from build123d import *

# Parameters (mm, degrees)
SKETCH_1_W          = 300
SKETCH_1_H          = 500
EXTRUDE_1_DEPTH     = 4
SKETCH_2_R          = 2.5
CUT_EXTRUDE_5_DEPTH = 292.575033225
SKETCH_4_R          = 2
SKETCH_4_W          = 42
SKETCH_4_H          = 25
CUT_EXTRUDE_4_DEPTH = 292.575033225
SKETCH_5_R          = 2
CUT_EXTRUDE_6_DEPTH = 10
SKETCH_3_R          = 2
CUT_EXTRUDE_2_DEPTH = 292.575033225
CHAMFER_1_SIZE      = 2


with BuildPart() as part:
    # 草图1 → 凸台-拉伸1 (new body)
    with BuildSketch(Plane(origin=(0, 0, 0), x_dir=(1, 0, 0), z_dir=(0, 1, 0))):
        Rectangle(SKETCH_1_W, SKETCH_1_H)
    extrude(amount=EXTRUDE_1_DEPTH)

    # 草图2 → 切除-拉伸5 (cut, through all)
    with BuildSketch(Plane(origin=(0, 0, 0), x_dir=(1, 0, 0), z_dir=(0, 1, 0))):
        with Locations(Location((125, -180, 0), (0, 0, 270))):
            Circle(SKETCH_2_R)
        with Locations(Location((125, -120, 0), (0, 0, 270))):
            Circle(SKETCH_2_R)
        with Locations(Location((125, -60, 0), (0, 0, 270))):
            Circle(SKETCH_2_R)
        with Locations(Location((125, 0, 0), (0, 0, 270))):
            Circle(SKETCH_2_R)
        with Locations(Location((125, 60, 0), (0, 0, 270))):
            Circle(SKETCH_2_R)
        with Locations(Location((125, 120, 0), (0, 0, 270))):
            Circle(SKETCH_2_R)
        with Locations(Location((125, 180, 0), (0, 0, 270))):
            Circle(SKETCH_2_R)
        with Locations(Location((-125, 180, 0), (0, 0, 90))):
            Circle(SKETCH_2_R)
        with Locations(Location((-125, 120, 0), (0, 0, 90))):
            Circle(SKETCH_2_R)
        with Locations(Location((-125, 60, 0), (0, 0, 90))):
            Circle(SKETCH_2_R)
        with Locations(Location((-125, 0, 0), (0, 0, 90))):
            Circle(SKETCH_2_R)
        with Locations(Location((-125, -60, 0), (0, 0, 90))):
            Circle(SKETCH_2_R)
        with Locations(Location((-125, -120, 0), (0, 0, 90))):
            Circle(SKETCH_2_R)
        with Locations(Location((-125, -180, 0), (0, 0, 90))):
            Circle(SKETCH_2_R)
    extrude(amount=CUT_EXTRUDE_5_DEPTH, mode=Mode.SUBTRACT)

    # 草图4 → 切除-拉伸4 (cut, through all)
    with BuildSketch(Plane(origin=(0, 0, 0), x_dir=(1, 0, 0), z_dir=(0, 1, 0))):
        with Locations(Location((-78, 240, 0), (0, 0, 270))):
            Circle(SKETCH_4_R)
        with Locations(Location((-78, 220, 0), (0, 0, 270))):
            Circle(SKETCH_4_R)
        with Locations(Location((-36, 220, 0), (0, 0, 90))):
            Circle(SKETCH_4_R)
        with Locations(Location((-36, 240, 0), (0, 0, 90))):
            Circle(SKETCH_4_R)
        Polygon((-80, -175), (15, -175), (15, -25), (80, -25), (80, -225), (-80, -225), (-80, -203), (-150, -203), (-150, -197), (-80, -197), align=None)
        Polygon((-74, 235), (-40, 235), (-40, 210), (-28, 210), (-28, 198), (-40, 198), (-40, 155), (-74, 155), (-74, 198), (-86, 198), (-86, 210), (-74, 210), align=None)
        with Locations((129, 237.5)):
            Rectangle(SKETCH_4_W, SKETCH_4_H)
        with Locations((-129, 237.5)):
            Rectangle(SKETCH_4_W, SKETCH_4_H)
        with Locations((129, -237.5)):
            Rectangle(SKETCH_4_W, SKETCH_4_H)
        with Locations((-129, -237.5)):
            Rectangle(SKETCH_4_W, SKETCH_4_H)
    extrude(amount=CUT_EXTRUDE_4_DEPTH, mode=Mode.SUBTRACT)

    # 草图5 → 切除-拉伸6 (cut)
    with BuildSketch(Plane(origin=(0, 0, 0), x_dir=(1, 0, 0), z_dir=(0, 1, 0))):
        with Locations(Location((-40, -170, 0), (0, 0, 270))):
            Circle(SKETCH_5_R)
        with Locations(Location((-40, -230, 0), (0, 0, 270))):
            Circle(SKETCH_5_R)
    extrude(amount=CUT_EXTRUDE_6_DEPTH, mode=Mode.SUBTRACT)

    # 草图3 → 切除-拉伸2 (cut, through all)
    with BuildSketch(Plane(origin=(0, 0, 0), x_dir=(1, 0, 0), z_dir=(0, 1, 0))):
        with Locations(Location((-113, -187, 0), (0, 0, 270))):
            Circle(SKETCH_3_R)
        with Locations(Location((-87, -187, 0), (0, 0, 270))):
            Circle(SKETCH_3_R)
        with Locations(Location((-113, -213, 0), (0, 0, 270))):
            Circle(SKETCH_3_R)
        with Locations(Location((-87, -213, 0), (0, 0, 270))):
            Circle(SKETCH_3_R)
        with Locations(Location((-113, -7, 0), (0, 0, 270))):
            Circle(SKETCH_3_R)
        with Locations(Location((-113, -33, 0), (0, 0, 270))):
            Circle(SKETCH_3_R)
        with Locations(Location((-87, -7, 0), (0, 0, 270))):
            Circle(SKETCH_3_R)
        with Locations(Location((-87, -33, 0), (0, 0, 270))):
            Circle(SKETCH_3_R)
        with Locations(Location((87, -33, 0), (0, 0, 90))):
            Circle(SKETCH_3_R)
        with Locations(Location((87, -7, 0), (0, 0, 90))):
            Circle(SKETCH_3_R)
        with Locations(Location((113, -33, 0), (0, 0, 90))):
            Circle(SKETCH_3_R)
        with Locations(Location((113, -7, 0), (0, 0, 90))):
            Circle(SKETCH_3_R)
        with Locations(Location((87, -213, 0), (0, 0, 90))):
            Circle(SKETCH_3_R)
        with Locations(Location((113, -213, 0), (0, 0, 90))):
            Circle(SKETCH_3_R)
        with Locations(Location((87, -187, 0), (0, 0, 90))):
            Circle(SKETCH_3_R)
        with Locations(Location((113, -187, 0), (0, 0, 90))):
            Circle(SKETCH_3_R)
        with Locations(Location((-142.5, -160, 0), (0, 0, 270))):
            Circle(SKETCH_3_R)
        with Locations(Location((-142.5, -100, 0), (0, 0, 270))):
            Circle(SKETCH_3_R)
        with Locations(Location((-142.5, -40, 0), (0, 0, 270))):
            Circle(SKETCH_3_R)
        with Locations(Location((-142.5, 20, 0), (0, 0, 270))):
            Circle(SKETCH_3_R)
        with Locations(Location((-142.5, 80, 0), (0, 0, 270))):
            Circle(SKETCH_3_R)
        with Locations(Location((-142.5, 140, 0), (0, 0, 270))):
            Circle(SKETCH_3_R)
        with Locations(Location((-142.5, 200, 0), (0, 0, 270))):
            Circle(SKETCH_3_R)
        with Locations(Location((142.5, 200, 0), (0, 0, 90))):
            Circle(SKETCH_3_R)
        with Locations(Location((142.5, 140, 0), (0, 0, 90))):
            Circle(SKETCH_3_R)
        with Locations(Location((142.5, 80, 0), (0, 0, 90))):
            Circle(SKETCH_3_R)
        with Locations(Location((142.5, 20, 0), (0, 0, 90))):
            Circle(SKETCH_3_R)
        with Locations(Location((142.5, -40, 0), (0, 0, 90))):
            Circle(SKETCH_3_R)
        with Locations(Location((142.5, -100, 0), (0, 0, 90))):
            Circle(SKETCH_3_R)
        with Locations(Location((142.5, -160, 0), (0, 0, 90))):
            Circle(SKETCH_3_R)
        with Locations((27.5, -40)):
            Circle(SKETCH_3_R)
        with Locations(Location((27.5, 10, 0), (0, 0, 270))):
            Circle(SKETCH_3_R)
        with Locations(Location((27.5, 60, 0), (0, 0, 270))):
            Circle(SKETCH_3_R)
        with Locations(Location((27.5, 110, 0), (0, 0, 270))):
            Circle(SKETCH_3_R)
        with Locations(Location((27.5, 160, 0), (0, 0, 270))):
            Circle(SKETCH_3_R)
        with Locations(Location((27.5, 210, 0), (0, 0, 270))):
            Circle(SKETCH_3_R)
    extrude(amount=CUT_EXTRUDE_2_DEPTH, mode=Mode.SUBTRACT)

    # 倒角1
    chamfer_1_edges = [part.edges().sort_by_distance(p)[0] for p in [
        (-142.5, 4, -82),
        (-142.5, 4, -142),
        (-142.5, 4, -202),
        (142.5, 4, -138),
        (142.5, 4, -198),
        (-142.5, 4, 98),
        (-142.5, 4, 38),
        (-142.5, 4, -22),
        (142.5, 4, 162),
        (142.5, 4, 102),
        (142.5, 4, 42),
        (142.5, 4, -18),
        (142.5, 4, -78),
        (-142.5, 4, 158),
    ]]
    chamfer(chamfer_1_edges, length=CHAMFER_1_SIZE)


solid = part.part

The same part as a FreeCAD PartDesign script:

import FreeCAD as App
import Part
import Sketcher

V = App.Vector
Q = App.Units.Quantity


def edges_at(feature, points):
    """Names of the edges that pass closest to the given points."""
    edges = feature.Shape.Edges
    near = lambda p: min(range(len(edges)), key=lambda i: edges[i].distToShape(Part.Vertex(*p))[0])
    return sorted({f"Edge{near(p) + 1}" for p in points})

doc = App.newDocument("Part")
body = doc.addObject("PartDesign::Body", "Body")

# Sketch on XZ plane
sketch1 = doc.addObject("Sketcher::SketchObject", "Sketch")
body.addObject(sketch1)
sketch1.AttachmentSupport = (doc.XZ_Plane, [""])
sketch1.MapMode = "FlatFace"
sketch1.addGeometry([
    Part.LineSegment(V(-150, -250, 0), V(-150, 250, 0)),
    Part.LineSegment(V(-150, 250, 0), V(150, 250, 0)),
    Part.LineSegment(V(150, 250, 0), V(150, -250, 0)),
    Part.LineSegment(V(150, -250, 0), V(-150, -250, 0)),
], False)
sketch1.addConstraint([
    Sketcher.Constraint("Coincident", 0, 2, 1, 1),
    Sketcher.Constraint("Coincident", 1, 2, 2, 1),
    Sketcher.Constraint("Coincident", 2, 2, 3, 1),
    Sketcher.Constraint("Coincident", 3, 2, 0, 1),
    Sketcher.Constraint("Vertical", 0),
    Sketcher.Constraint("Horizontal", 1),
    Sketcher.Constraint("Vertical", 2),
    Sketcher.Constraint("Horizontal", 3),
    Sketcher.Constraint("Symmetric", 0, 2, 2, 2, -1, 1),
    Sketcher.Constraint("DistanceX", 1, 1, 1, 2, Q("300 mm")),
    Sketcher.Constraint("DistanceY", 0, 1, 0, 2, Q("500 mm")),
])
pad1 = doc.addObject("PartDesign::Pad", "Pad")
body.addObject(pad1)
pad1.Profile = sketch1
pad1.Length = 4
pad1.Reversed = True

# Sketch on XZ plane
sketch2 = doc.addObject("Sketcher::SketchObject", "Sketch001")
body.addObject(sketch2)
sketch2.AttachmentSupport = (doc.XZ_Plane, [""])
sketch2.MapMode = "FlatFace"
sketch2.addGeometry([
    Part.Circle(V(125, 180, 0), V(0, 0, 1), 2.5),  # 0
    Part.Circle(V(125, 120, 0), V(0, 0, 1), 2.5),  # 1
    Part.Circle(V(125, 60, 0), V(0, 0, 1), 2.5),  # 2
    Part.Circle(V(125, 0, 0), V(0, 0, 1), 2.5),  # 3
    Part.Circle(V(125, -60, 0), V(0, 0, 1), 2.5),  # 4
    Part.Circle(V(125, -120, 0), V(0, 0, 1), 2.5),  # 5
    Part.Circle(V(125, -180, 0), V(0, 0, 1), 2.5),  # 6
    Part.Circle(V(-125, -180, 0), V(0, 0, 1), 2.5),  # 7
    Part.Circle(V(-125, -120, 0), V(0, 0, 1), 2.5),  # 8
    Part.Circle(V(-125, -60, 0), V(0, 0, 1), 2.5),  # 9
    Part.Circle(V(-125, 0, 0), V(0, 0, 1), 2.5),  # 10
    Part.Circle(V(-125, 60, 0), V(0, 0, 1), 2.5),  # 11
    Part.Circle(V(-125, 120, 0), V(0, 0, 1), 2.5),  # 12
    Part.Circle(V(-125, 180, 0), V(0, 0, 1), 2.5),  # 13
], False)
sketch2.addConstraint([
    Sketcher.Constraint("Equal", 0, 1),
    Sketcher.Constraint("Equal", 1, 2),
    Sketcher.Constraint("Equal", 2, 3),
    Sketcher.Constraint("Equal", 3, 4),
    Sketcher.Constraint("Equal", 4, 5),
    Sketcher.Constraint("Equal", 5, 6),
    Sketcher.Constraint("Equal", 6, 7),
    Sketcher.Constraint("Equal", 7, 8),
    Sketcher.Constraint("Equal", 8, 9),
    Sketcher.Constraint("Equal", 9, 10),
    Sketcher.Constraint("Equal", 10, 11),
    Sketcher.Constraint("Equal", 11, 12),
    Sketcher.Constraint("Equal", 12, 13),
    Sketcher.Constraint("Symmetric", 0, 3, 7, 3, -1, 1),
    Sketcher.Constraint("Symmetric", 1, 3, 8, 3, -1, 1),
    Sketcher.Constraint("Symmetric", 2, 3, 9, 3, -1, 1),
    Sketcher.Constraint("Symmetric", 3, 3, 10, 3, -1, 1),
    Sketcher.Constraint("Symmetric", 4, 3, 11, 3, -1, 1),
    Sketcher.Constraint("Symmetric", 5, 3, 12, 3, -1, 1),
    Sketcher.Constraint("Symmetric", 6, 3, 13, 3, -1, 1),
    Sketcher.Constraint("Symmetric", 6, 3, 7, 3, -2),
    Sketcher.Constraint("Symmetric", 5, 3, 8, 3, -2),
    Sketcher.Constraint("Symmetric", 4, 3, 9, 3, -2),
    Sketcher.Constraint("PointOnObject", 3, 3, -1),
    Sketcher.Constraint("Vertical", 0, 3, 1, 3),
    Sketcher.Constraint("Vertical", 1, 3, 2, 3),
    Sketcher.Constraint("Vertical", 2, 3, 3, 3),
    Sketcher.Constraint("Diameter", 0, Q("5 mm")),
    Sketcher.Constraint("DistanceX", -1, 1, 0, 3, Q("125 mm")),
    Sketcher.Constraint("DistanceY", -1, 1, 0, 3, Q("180 mm")),
    Sketcher.Constraint("DistanceY", -1, 1, 1, 3, Q("120 mm")),
    Sketcher.Constraint("DistanceY", -1, 1, 2, 3, Q("60 mm")),
])
pocket1 = doc.addObject("PartDesign::Pocket", "Pocket")
body.addObject(pocket1)
pocket1.Profile = sketch2
pocket1.Type = "ThroughAll"

# Sketch on XZ plane
sketch3 = doc.addObject("Sketcher::SketchObject", "Sketch002")
body.addObject(sketch3)
sketch3.AttachmentSupport = (doc.XZ_Plane, [""])
sketch3.MapMode = "FlatFace"
sketch3.addGeometry([
    Part.Circle(V(-78, -240, 0), V(0, 0, 1), 2),  # 0
    Part.Circle(V(-78, -220, 0), V(0, 0, 1), 2),  # 1
    Part.Circle(V(-36, -220, 0), V(0, 0, 1), 2),  # 2
    Part.Circle(V(-36, -240, 0), V(0, 0, 1), 2),  # 3
    Part.LineSegment(V(15, 175, 0), V(-80, 175, 0)),  # 4
    Part.LineSegment(V(-80, 175, 0), V(-80, 197, 0)),  # 5
    Part.LineSegment(V(-80, 197, 0), V(-150, 197, 0)),  # 6
    Part.LineSegment(V(-150, 197, 0), V(-150, 203, 0)),  # 7
    Part.LineSegment(V(-150, 203, 0), V(-80, 203, 0)),  # 8
    Part.LineSegment(V(-80, 203, 0), V(-80, 225, 0)),  # 9
    Part.LineSegment(V(-80, 225, 0), V(80, 225, 0)),  # 10
    Part.LineSegment(V(80, 225, 0), V(80, 25, 0)),  # 11
    Part.LineSegment(V(80, 25, 0), V(15, 25, 0)),  # 12
    Part.LineSegment(V(15, 25, 0), V(15, 175, 0)),  # 13
    Part.LineSegment(V(-40, -235, 0), V(-74, -235, 0)),  # 14
    Part.LineSegment(V(-74, -235, 0), V(-74, -210, 0)),  # 15
    Part.LineSegment(V(-74, -210, 0), V(-86, -210, 0)),  # 16
    Part.LineSegment(V(-86, -210, 0), V(-86, -198, 0)),  # 17
    Part.LineSegment(V(-86, -198, 0), V(-74, -198, 0)),  # 18
    Part.LineSegment(V(-74, -198, 0), V(-74, -155, 0)),  # 19
    Part.LineSegment(V(-74, -155, 0), V(-40, -155, 0)),  # 20
    Part.LineSegment(V(-40, -155, 0), V(-40, -198, 0)),  # 21
    Part.LineSegment(V(-40, -198, 0), V(-28, -198, 0)),  # 22
    Part.LineSegment(V(-28, -198, 0), V(-28, -210, 0)),  # 23
    Part.LineSegment(V(-28, -210, 0), V(-40, -210, 0)),  # 24
    Part.LineSegment(V(-40, -210, 0), V(-40, -235, 0)),  # 25
    Part.LineSegment(V(108, -250, 0), V(108, -225, 0)),  # 26
    Part.LineSegment(V(108, -225, 0), V(150, -225, 0)),  # 27
    Part.LineSegment(V(150, -225, 0), V(150, -250, 0)),  # 28
    Part.LineSegment(V(150, -250, 0), V(108, -250, 0)),  # 29
    Part.LineSegment(V(-150, -250, 0), V(-150, -225, 0)),  # 30
    Part.LineSegment(V(-150, -225, 0), V(-108, -225, 0)),  # 31
    Part.LineSegment(V(-108, -225, 0), V(-108, -250, 0)),  # 32
    Part.LineSegment(V(-108, -250, 0), V(-150, -250, 0)),  # 33
    Part.LineSegment(V(108, 225, 0), V(108, 250, 0)),  # 34
    Part.LineSegment(V(108, 250, 0), V(150, 250, 0)),  # 35
    Part.LineSegment(V(150, 250, 0), V(150, 225, 0)),  # 36
    Part.LineSegment(V(150, 225, 0), V(108, 225, 0)),  # 37
    Part.LineSegment(V(-150, 225, 0), V(-150, 250, 0)),  # 38
    Part.LineSegment(V(-150, 250, 0), V(-108, 250, 0)),  # 39
    Part.LineSegment(V(-108, 250, 0), V(-108, 225, 0)),  # 40
    Part.LineSegment(V(-108, 225, 0), V(-150, 225, 0)),  # 41
], False)
sketch3.addConstraint([
    Sketcher.Constraint("Coincident", 4, 2, 5, 1),
    Sketcher.Constraint("Coincident", 5, 2, 6, 1),
    Sketcher.Constraint("Coincident", 6, 2, 7, 1),
    Sketcher.Constraint("Coincident", 7, 2, 8, 1),
    Sketcher.Constraint("Coincident", 8, 2, 9, 1),
    Sketcher.Constraint("Coincident", 9, 2, 10, 1),
    Sketcher.Constraint("Coincident", 10, 2, 11, 1),
    Sketcher.Constraint("Coincident", 11, 2, 12, 1),
    Sketcher.Constraint("Coincident", 12, 2, 13, 1),
    Sketcher.Constraint("Coincident", 13, 2, 4, 1),
    Sketcher.Constraint("Coincident", 14, 2, 15, 1),
    Sketcher.Constraint("Coincident", 15, 2, 16, 1),
    Sketcher.Constraint("Coincident", 16, 2, 17, 1),
    Sketcher.Constraint("Coincident", 17, 2, 18, 1),
    Sketcher.Constraint("Coincident", 18, 2, 19, 1),
    Sketcher.Constraint("Coincident", 19, 2, 20, 1),
    Sketcher.Constraint("Coincident", 20, 2, 21, 1),
    Sketcher.Constraint("Coincident", 21, 2, 22, 1),
    Sketcher.Constraint("Coincident", 22, 2, 23, 1),
    Sketcher.Constraint("Coincident", 23, 2, 24, 1),
    Sketcher.Constraint("Coincident", 24, 2, 25, 1),
    Sketcher.Constraint("Coincident", 25, 2, 14, 1),
    Sketcher.Constraint("Coincident", 26, 2, 27, 1),
    Sketcher.Constraint("Coincident", 27, 2, 28, 1),
    Sketcher.Constraint("Coincident", 28, 2, 29, 1),
    Sketcher.Constraint("Coincident", 29, 2, 26, 1),
    Sketcher.Constraint("Coincident", 30, 2, 31, 1),
    Sketcher.Constraint("Coincident", 31, 2, 32, 1),
    Sketcher.Constraint("Coincident", 32, 2, 33, 1),
    Sketcher.Constraint("Coincident", 33, 2, 30, 1),
    Sketcher.Constraint("Coincident", 34, 2, 35, 1),
    Sketcher.Constraint("Coincident", 35, 2, 36, 1),
    Sketcher.Constraint("Coincident", 36, 2, 37, 1),
    Sketcher.Constraint("Coincident", 37, 2, 34, 1),
    Sketcher.Constraint("Coincident", 38, 2, 39, 1),
    Sketcher.Constraint("Coincident", 39, 2, 40, 1),
    Sketcher.Constraint("Coincident", 40, 2, 41, 1),
    Sketcher.Constraint("Coincident", 41, 2, 38, 1),
    Sketcher.Constraint("Horizontal", 4),
    Sketcher.Constraint("Vertical", 5),
    Sketcher.Constraint("Horizontal", 6),
    Sketcher.Constraint("Vertical", 7),
    Sketcher.Constraint("Horizontal", 8),
    Sketcher.Constraint("Vertical", 9),
    Sketcher.Constraint("Horizontal", 10),
    Sketcher.Constraint("Vertical", 11),
    Sketcher.Constraint("Horizontal", 12),
    Sketcher.Constraint("Vertical", 13),
    Sketcher.Constraint("Horizontal", 14),
    Sketcher.Constraint("Vertical", 15),
    Sketcher.Constraint("Horizontal", 16),
    Sketcher.Constraint("Vertical", 17),
    Sketcher.Constraint("Horizontal", 18),
    Sketcher.Constraint("Vertical", 19),
    Sketcher.Constraint("Horizontal", 20),
    Sketcher.Constraint("Vertical", 21),
    Sketcher.Constraint("Horizontal", 22),
    Sketcher.Constraint("Vertical", 23),
    Sketcher.Constraint("Horizontal", 24),
    Sketcher.Constraint("Vertical", 25),
    Sketcher.Constraint("Vertical", 26),
    Sketcher.Constraint("Horizontal", 27),
    Sketcher.Constraint("Vertical", 28),
    Sketcher.Constraint("Horizontal", 29),
    Sketcher.Constraint("Vertical", 30),
    Sketcher.Constraint("Horizontal", 31),
    Sketcher.Constraint("Vertical", 32),
    Sketcher.Constraint("Horizontal", 33),
    Sketcher.Constraint("Vertical", 34),
    Sketcher.Constraint("Horizontal", 35),
    Sketcher.Constraint("Vertical", 36),
    Sketcher.Constraint("Horizontal", 37),
    Sketcher.Constraint("Vertical", 38),
    Sketcher.Constraint("Horizontal", 39),
    Sketcher.Constraint("Vertical", 40),
    Sketcher.Constraint("Horizontal", 41),
    Sketcher.Constraint("Equal", 0, 1),
    Sketcher.Constraint("Equal", 1, 2),
    Sketcher.Constraint("Equal", 2, 3),
    Sketcher.Constraint("Symmetric", 32, 2, 34, 2, -1, 1),
    Sketcher.Constraint("Symmetric", 30, 2, 36, 2, -1, 1),
    Sketcher.Constraint("Symmetric", 28, 2, 38, 2, -1, 1),
    Sketcher.Constraint("Symmetric", 26, 2, 40, 2, -1, 1),
    Sketcher.Constraint("Symmetric", 27, 2, 30, 2, -2),
    Sketcher.Constraint("Symmetric", 29, 2, 32, 2, -2),
    Sketcher.Constraint("Horizontal", 1, 3, 2, 3),
    Sketcher.Constraint("Horizontal", 0, 3, 3, 3),
    Sketcher.Constraint("Horizontal", 18, 2, 21, 2),
    Sketcher.Constraint("Horizontal", 16, 2, 23, 2),
    Sketcher.Constraint("Horizontal", 10, 2, 36, 2),
    Sketcher.Constraint("Vertical", 0, 3, 1, 3),
    Sketcher.Constraint("Vertical", 2, 3, 3, 3),
    Sketcher.Constraint("Vertical", 5, 2, 8, 2),
    Sketcher.Constraint("Vertical", 15, 2, 18, 2),
    Sketcher.Constraint("Vertical", 21, 2, 24, 2),
    Sketcher.Constraint("Vertical", 7, 2, 30, 2),
    Sketcher.Constraint("Equal", 18, 22),
    Sketcher.Constraint("Equal", 5, 9),
    Sketcher.Constraint("Equal", 24, 17),
    Sketcher.Constraint("Equal", 25, 26),
    Sketcher.Constraint("Diameter", 0, Q("4 mm")),
    Sketcher.Constraint("DistanceX", 4, 2, 4, 1, Q("95 mm")),
    Sketcher.Constraint("DistanceX", 6, 2, 6, 1, Q("70 mm")),
    Sketcher.Constraint("DistanceX", 10, 1, 10, 2, Q("160 mm")),
    Sketcher.Constraint("DistanceX", 14, 2, 14, 1, Q("34 mm")),
    Sketcher.Constraint("DistanceX", 16, 2, 16, 1, Q("12 mm")),
    Sketcher.Constraint("DistanceX", 27, 1, 27, 2, Q("42 mm")),
    Sketcher.Constraint("DistanceY", 5, 1, 5, 2, Q("22 mm")),
    Sketcher.Constraint("DistanceY", 7, 1, 7, 2, Q("6 mm")),
    Sketcher.Constraint("DistanceY", 11, 2, 11, 1, Q("200 mm")),
    Sketcher.Constraint("DistanceY", 15, 1, 15, 2, Q("25 mm")),
    Sketcher.Constraint("DistanceY", 19, 1, 19, 2, Q("43 mm")),
    Sketcher.Constraint("DistanceX", 0, 3, -1, 1, Q("78 mm")),
    Sketcher.Constraint("DistanceY", 0, 3, -1, 1, Q("240 mm")),
    Sketcher.Constraint("DistanceY", 1, 3, -1, 1, Q("220 mm")),
    Sketcher.Constraint("DistanceX", 2, 3, -1, 1, Q("36 mm")),
    Sketcher.Constraint("DistanceX", 4, 2, -1, 1, Q("80 mm")),
    Sketcher.Constraint("DistanceY", -1, 1, 4, 2, Q("175 mm")),
    Sketcher.Constraint("DistanceX", 14, 2, -1, 1, Q("74 mm")),
    Sketcher.Constraint("DistanceY", 14, 2, -1, 1, Q("235 mm")),
])
pocket2 = doc.addObject("PartDesign::Pocket", "Pocket001")
body.addObject(pocket2)
pocket2.Profile = sketch3
pocket2.Type = "ThroughAll"

# Sketch on XZ plane
sketch4 = doc.addObject("Sketcher::SketchObject", "Sketch003")
body.addObject(sketch4)
sketch4.AttachmentSupport = (doc.XZ_Plane, [""])
sketch4.MapMode = "FlatFace"
sketch4.addGeometry([
    Part.Circle(V(-40, 170, 0), V(0, 0, 1), 2),
    Part.Circle(V(-40, 230, 0), V(0, 0, 1), 2),
], False)
sketch4.addConstraint([
    Sketcher.Constraint("Equal", 0, 1),
    Sketcher.Constraint("Vertical", 0, 3, 1, 3),
    Sketcher.Constraint("Diameter", 0, Q("4 mm")),
    Sketcher.Constraint("DistanceX", 0, 3, -1, 1, Q("40 mm")),
    Sketcher.Constraint("DistanceY", -1, 1, 0, 3, Q("170 mm")),
    Sketcher.Constraint("DistanceY", -1, 1, 1, 3, Q("230 mm")),
])
pocket3 = doc.addObject("PartDesign::Pocket", "Pocket002")
body.addObject(pocket3)
pocket3.Profile = sketch4
pocket3.Length = 10

# Sketch on XZ plane
sketch5 = doc.addObject("Sketcher::SketchObject", "Sketch004")
body.addObject(sketch5)
sketch5.AttachmentSupport = (doc.XZ_Plane, [""])
sketch5.MapMode = "FlatFace"
sketch5.addGeometry([
    Part.Circle(V(-113, 187, 0), V(0, 0, 1), 2),  # 0
    Part.Circle(V(-87, 187, 0), V(0, 0, 1), 2),  # 1
    Part.Circle(V(-113, 213, 0), V(0, 0, 1), 2),  # 2
    Part.Circle(V(-87, 213, 0), V(0, 0, 1), 2),  # 3
    Part.Circle(V(-113, 7, 0), V(0, 0, 1), 2),  # 4
    Part.Circle(V(-113, 33, 0), V(0, 0, 1), 2),  # 5
    Part.Circle(V(-87, 7, 0), V(0, 0, 1), 2),  # 6
    Part.Circle(V(-87, 33, 0), V(0, 0, 1), 2),  # 7
    Part.Circle(V(87, 33, 0), V(0, 0, 1), 2),  # 8
    Part.Circle(V(87, 7, 0), V(0, 0, 1), 2),  # 9
    Part.Circle(V(113, 33, 0), V(0, 0, 1), 2),  # 10
    Part.Circle(V(113, 7, 0), V(0, 0, 1), 2),  # 11
    Part.Circle(V(87, 213, 0), V(0, 0, 1), 2),  # 12
    Part.Circle(V(113, 213, 0), V(0, 0, 1), 2),  # 13
    Part.Circle(V(87, 187, 0), V(0, 0, 1), 2),  # 14
    Part.Circle(V(113, 187, 0), V(0, 0, 1), 2),  # 15
    Part.Circle(V(-142.5, 160, 0), V(0, 0, 1), 2),  # 16
    Part.Circle(V(-142.5, 100, 0), V(0, 0, 1), 2),  # 17
    Part.Circle(V(-142.5, 40, 0), V(0, 0, 1), 2),  # 18
    Part.Circle(V(-142.5, -20, 0), V(0, 0, 1), 2),  # 19
    Part.Circle(V(-142.5, -80, 0), V(0, 0, 1), 2),  # 20
    Part.Circle(V(-142.5, -140, 0), V(0, 0, 1), 2),  # 21
    Part.Circle(V(-142.5, -200, 0), V(0, 0, 1), 2),  # 22
    Part.Circle(V(142.5, -200, 0), V(0, 0, 1), 2),  # 23
    Part.Circle(V(142.5, -140, 0), V(0, 0, 1), 2),  # 24
    Part.Circle(V(142.5, -80, 0), V(0, 0, 1), 2),  # 25
    Part.Circle(V(142.5, -20, 0), V(0, 0, 1), 2),  # 26
    Part.Circle(V(142.5, 40, 0), V(0, 0, 1), 2),  # 27
    Part.Circle(V(142.5, 100, 0), V(0, 0, 1), 2),  # 28
    Part.Circle(V(142.5, 160, 0), V(0, 0, 1), 2),  # 29
    Part.Circle(V(27.5, 40, 0), V(0, 0, 1), 2),  # 30
    Part.Circle(V(27.5, -10, 0), V(0, 0, 1), 2),  # 31
    Part.Circle(V(27.5, -60, 0), V(0, 0, 1), 2),  # 32
    Part.Circle(V(27.5, -110, 0), V(0, 0, 1), 2),  # 33
    Part.Circle(V(27.5, -160, 0), V(0, 0, 1), 2),  # 34
    Part.Circle(V(27.5, -210, 0), V(0, 0, 1), 2),  # 35
], False)
sketch5.addConstraint([
    Sketcher.Constraint("Equal", 0, 1),
    Sketcher.Constraint("Equal", 1, 2),
    Sketcher.Constraint("Equal", 2, 3),
    Sketcher.Constraint("Equal", 3, 4),
    Sketcher.Constraint("Equal", 4, 5),
    Sketcher.Constraint("Equal", 5, 6),
    Sketcher.Constraint("Equal", 6, 7),
    Sketcher.Constraint("Equal", 7, 8),
    Sketcher.Constraint("Equal", 8, 9),
    Sketcher.Constraint("Equal", 9, 10),
    Sketcher.Constraint("Equal", 10, 11),
    Sketcher.Constraint("Equal", 11, 12),
    Sketcher.Constraint("Equal", 12, 13),
    Sketcher.Constraint("Equal", 13, 14),
    Sketcher.Constraint("Equal", 14, 15),
    Sketcher.Constraint("Equal", 15, 16),
    Sketcher.Constraint("Equal", 16, 17),
    Sketcher.Constraint("Equal", 17, 18),
    Sketcher.Constraint("Equal", 18, 19),
    Sketcher.Constraint("Equal", 19, 20),
    Sketcher.Constraint("Equal", 20, 21),
    Sketcher.Constraint("Equal", 21, 22),
    Sketcher.Constraint("Equal", 22, 23),
    Sketcher.Constraint("Equal", 23, 24),
    Sketcher.Constraint("Equal", 24, 25),
    Sketcher.Constraint("Equal", 25, 26),
    Sketcher.Constraint("Equal", 26, 27),
    Sketcher.Constraint("Equal", 27, 28),
    Sketcher.Constraint("Equal", 28, 29),
    Sketcher.Constraint("Equal", 29, 30),
    Sketcher.Constraint("Equal", 30, 31),
    Sketcher.Constraint("Equal", 31, 32),
    Sketcher.Constraint("Equal", 32, 33),
    Sketcher.Constraint("Equal", 33, 34),
    Sketcher.Constraint("Equal", 34, 35),
    Sketcher.Constraint("Symmetric", 7, 3, 8, 3, -2),
    Sketcher.Constraint("Symmetric", 6, 3, 9, 3, -2),
    Sketcher.Constraint("Symmetric", 5, 3, 10, 3, -2),
    Sketcher.Constraint("Symmetric", 4, 3, 11, 3, -2),
    Sketcher.Constraint("Symmetric", 3, 3, 12, 3, -2),
    Sketcher.Constraint("Symmetric", 2, 3, 13, 3, -2),
    Sketcher.Constraint("Symmetric", 1, 3, 14, 3, -2),
    Sketcher.Constraint("Symmetric", 0, 3, 15, 3, -2),
    Sketcher.Constraint("Symmetric", 22, 3, 23, 3, -2),
    Sketcher.Constraint("Symmetric", 21, 3, 24, 3, -2),
    Sketcher.Constraint("Symmetric", 20, 3, 25, 3, -2),
    Sketcher.Constraint("Symmetric", 19, 3, 26, 3, -2),
    Sketcher.Constraint("Symmetric", 18, 3, 27, 3, -2),
    Sketcher.Constraint("Symmetric", 17, 3, 28, 3, -2),
    Sketcher.Constraint("Symmetric", 16, 3, 29, 3, -2),
    Sketcher.Constraint("Horizontal", 0, 3, 1, 3),
    Sketcher.Constraint("Horizontal", 2, 3, 3, 3),
    Sketcher.Constraint("Horizontal", 4, 3, 6, 3),
    Sketcher.Constraint("Horizontal", 5, 3, 7, 3),
    Sketcher.Constraint("Horizontal", 27, 3, 30, 3),
    Sketcher.Constraint("Vertical", 0, 3, 2, 3),
    Sketcher.Constraint("Vertical", 1, 3, 3, 3),
    Sketcher.Constraint("Vertical", 2, 3, 4, 3),
    Sketcher.Constraint("Vertical", 4, 3, 5, 3),
    Sketcher.Constraint("Vertical", 3, 3, 6, 3),
    Sketcher.Constraint("Vertical", 6, 3, 7, 3),
    Sketcher.Constraint("Vertical", 16, 3, 17, 3),
    Sketcher.Constraint("Vertical", 17, 3, 18, 3),
    Sketcher.Constraint("Vertical", 18, 3, 19, 3),
    Sketcher.Constraint("Vertical", 19, 3, 20, 3),
    Sketcher.Constraint("Vertical", 20, 3, 21, 3),
    Sketcher.Constraint("Vertical", 21, 3, 22, 3),
    Sketcher.Constraint("Vertical", 30, 3, 31, 3),
    Sketcher.Constraint("Vertical", 31, 3, 32, 3),
    Sketcher.Constraint("Vertical", 32, 3, 33, 3),
    Sketcher.Constraint("Vertical", 33, 3, 34, 3),
    Sketcher.Constraint("Vertical", 34, 3, 35, 3),
    Sketcher.Constraint("Diameter", 0, Q("4 mm")),
    Sketcher.Constraint("DistanceX", 0, 3, -1, 1, Q("113 mm")),
    Sketcher.Constraint("DistanceY", -1, 1, 0, 3, Q("187 mm")),
    Sketcher.Constraint("DistanceX", 1, 3, -1, 1, Q("87 mm")),
    Sketcher.Constraint("DistanceY", -1, 1, 2, 3, Q("213 mm")),
    Sketcher.Constraint("DistanceY", -1, 1, 4, 3, Q("7 mm")),
    Sketcher.Constraint("DistanceY", -1, 1, 5, 3, Q("33 mm")),
    Sketcher.Constraint("DistanceY", -1, 1, 16, 3, Q("160 mm")),
    Sketcher.Constraint("DistanceY", -1, 1, 17, 3, Q("100 mm")),
    Sketcher.Constraint("DistanceY", -1, 1, 18, 3, Q("40 mm")),
    Sketcher.Constraint("DistanceY", 19, 3, -1, 1, Q("20 mm")),
    Sketcher.Constraint("DistanceY", 20, 3, -1, 1, Q("80 mm")),
    Sketcher.Constraint("DistanceY", 21, 3, -1, 1, Q("140 mm")),
    Sketcher.Constraint("DistanceY", 22, 3, -1, 1, Q("200 mm")),
    Sketcher.Constraint("DistanceY", 31, 3, -1, 1, Q("10 mm")),
    Sketcher.Constraint("DistanceY", 32, 3, -1, 1, Q("60 mm")),
    Sketcher.Constraint("DistanceY", 33, 3, -1, 1, Q("110 mm")),
    Sketcher.Constraint("DistanceY", 34, 3, -1, 1, Q("160 mm")),
    Sketcher.Constraint("DistanceY", 35, 3, -1, 1, Q("210 mm")),
    Sketcher.Constraint("DistanceX", 22, 3, 23, 3, Q("285 mm")),
    Sketcher.Constraint("DistanceX", 33, 3, 24, 3, Q("115 mm")),
])
pocket4 = doc.addObject("PartDesign::Pocket", "Pocket003")
body.addObject(pocket4)
pocket4.Profile = sketch5
pocket4.Type = "ThroughAll"
doc.recompute()

chamfer = doc.addObject("PartDesign::Chamfer", "Chamfer")
body.addObject(chamfer)
chamfer.Base = (pocket4, edges_at(pocket4, [
    (-142.5, 4, -82),
    (-142.5, 4, -142),
    (-142.5, 4, -202),
    (142.5, 4, -138),
    (142.5, 4, -198),
    (-142.5, 4, 98),
    (-142.5, 4, 38),
    (-142.5, 4, -22),
    (142.5, 4, 162),
    (142.5, 4, 102),
    (142.5, 4, 42),
    (142.5, 4, -18),
    (142.5, 4, -78),
    (-142.5, 4, 158),
]))
chamfer.Size = 2

doc.recompute()
